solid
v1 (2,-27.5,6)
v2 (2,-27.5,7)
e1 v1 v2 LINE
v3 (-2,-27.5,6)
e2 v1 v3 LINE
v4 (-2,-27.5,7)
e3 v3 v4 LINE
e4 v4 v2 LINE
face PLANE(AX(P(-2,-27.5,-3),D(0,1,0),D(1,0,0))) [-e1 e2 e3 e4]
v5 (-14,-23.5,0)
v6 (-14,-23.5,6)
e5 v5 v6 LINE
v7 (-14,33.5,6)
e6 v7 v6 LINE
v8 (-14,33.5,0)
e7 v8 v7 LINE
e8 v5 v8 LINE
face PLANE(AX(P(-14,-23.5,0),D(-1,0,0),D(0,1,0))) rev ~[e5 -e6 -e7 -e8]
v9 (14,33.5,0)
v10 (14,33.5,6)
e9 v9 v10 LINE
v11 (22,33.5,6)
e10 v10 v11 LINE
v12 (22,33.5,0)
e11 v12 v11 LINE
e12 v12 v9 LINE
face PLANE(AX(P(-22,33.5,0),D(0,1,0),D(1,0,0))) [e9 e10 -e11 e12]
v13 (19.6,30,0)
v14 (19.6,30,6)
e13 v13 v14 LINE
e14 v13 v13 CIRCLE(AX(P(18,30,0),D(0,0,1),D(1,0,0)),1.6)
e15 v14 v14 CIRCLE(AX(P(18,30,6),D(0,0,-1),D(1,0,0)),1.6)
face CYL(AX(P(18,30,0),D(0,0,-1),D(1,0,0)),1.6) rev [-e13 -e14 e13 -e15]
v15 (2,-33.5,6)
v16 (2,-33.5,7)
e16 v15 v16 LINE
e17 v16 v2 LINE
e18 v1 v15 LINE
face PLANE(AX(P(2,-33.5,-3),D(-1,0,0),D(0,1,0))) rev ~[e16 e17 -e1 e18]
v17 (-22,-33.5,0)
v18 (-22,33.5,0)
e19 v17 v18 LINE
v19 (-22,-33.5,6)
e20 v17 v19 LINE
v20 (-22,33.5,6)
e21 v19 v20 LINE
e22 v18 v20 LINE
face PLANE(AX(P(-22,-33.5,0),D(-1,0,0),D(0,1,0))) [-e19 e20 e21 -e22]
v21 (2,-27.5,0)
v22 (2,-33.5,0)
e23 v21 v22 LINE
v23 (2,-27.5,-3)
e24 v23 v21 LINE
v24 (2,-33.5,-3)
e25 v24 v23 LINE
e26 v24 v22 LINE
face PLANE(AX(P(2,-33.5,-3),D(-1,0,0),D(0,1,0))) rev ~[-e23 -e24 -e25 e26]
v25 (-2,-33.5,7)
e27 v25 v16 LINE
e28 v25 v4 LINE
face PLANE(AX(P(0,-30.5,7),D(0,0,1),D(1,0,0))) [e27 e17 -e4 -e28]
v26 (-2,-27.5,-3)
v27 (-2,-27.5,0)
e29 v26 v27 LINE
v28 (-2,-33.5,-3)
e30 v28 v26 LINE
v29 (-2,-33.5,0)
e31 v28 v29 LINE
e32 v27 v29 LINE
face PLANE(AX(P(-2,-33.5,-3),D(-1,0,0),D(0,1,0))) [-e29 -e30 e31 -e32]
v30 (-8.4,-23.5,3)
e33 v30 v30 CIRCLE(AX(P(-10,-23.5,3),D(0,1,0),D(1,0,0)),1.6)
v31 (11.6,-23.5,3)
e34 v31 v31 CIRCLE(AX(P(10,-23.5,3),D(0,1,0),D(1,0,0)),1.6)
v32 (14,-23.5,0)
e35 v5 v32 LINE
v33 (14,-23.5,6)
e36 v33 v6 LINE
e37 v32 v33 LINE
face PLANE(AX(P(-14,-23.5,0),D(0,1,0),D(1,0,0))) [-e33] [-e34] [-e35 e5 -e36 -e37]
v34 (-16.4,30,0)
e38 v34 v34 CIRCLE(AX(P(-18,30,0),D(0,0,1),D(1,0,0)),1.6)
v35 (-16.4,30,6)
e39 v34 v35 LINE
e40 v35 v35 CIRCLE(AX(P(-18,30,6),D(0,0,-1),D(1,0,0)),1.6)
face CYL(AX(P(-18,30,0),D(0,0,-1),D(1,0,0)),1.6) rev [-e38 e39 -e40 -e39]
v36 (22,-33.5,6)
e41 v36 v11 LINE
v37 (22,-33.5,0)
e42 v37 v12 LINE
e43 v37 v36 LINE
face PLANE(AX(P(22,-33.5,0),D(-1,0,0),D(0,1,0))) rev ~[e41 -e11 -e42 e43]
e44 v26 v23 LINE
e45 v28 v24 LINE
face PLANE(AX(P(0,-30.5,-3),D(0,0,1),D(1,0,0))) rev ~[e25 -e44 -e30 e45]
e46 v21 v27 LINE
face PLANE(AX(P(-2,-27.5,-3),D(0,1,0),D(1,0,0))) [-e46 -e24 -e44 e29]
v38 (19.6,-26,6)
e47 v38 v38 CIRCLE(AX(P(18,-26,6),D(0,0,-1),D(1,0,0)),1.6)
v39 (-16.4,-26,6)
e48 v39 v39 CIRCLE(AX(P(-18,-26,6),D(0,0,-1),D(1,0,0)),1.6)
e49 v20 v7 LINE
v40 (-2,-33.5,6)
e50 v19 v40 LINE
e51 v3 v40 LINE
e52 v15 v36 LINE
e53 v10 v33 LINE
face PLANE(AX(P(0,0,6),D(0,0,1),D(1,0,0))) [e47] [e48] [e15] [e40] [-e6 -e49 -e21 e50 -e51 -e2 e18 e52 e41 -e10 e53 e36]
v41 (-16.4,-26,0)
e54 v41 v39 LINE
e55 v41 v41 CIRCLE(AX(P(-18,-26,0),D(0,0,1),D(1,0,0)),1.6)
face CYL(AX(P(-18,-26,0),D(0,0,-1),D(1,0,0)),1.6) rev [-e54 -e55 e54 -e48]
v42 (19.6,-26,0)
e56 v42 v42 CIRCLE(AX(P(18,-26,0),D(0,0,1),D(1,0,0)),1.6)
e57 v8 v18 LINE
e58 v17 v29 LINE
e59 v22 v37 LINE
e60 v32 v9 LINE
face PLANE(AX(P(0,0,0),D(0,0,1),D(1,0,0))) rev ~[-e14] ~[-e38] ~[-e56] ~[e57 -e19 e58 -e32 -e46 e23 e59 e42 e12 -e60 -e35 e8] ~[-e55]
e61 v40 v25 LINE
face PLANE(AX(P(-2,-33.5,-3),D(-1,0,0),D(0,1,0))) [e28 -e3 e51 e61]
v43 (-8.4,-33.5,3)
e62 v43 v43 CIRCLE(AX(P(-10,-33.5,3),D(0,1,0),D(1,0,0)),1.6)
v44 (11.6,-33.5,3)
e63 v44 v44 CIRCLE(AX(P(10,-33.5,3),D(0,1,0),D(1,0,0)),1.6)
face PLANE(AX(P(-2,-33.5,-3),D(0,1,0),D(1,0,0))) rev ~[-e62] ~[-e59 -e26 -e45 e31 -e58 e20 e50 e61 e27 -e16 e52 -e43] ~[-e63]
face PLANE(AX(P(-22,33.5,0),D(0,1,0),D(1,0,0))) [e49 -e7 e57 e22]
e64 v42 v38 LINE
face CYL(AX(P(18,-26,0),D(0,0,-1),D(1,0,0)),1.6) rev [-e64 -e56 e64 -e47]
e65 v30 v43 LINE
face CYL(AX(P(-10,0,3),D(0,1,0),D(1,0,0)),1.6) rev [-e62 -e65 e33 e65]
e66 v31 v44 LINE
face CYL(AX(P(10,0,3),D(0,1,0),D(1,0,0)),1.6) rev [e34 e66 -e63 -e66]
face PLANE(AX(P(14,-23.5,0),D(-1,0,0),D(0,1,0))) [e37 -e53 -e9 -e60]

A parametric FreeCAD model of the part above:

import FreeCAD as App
import Part
import Sketcher
from FreeCAD import Vector


def add_polygon(sketch, points):
    """Adds a closed chain of lines whose ends are joined by coincident constraints."""
    first, n = sketch.GeometryCount, len(points)
    for a, b in zip(points, points[1:] + points[:1]):
        sketch.addGeometry(Part.LineSegment(App.Vector(*a, 0), App.Vector(*b, 0)), False)
    for i in range(n):
        sketch.addConstraint(Sketcher.Constraint("Coincident", first + i, 2, first + (i + 1) % n, 1))

doc = App.newDocument("Part")
body = doc.addObject("PartDesign::Body", "Body")

sketch1 = doc.addObject("Sketcher::SketchObject", "Sketch")
body.addObject(sketch1)
sketch1.AttachmentSupport = (doc.XY_Plane, [""])
sketch1.MapMode = "FlatFace"
add_polygon(sketch1, [(-22, 34), (-22, -34), (22, -34), (22, 34)])
sketch1.addConstraint([
    Sketcher.Constraint("Vertical", 0),
    Sketcher.Constraint("Horizontal", 1),
    Sketcher.Constraint("Vertical", 2),
    Sketcher.Constraint("Horizontal", 3),
    Sketcher.Constraint("Symmetric", 0, 2, 2, 2, -1, 1),
    Sketcher.Constraint("DistanceX", 1, 1, 1, 2, 44.0),
    Sketcher.Constraint("DistanceY", 0, 2, 0, 1, 67.0),
])
pad1 = doc.addObject("PartDesign::Pad", "Pad")
body.addObject(pad1)
pad1.Profile = sketch1
pad1.Length = 6

sketch2 = doc.addObject("Sketcher::SketchObject", "Sketch001")
body.addObject(sketch2)
sketch2.AttachmentSupport = (doc.XY_Plane, [""])
sketch2.MapMode = "FlatFace"
add_polygon(sketch2, [(-14, 36), (-14, -24), (14, -24), (14, 36)])
sketch2.addConstraint([
    Sketcher.Constraint("Vertical", 0),
    Sketcher.Constraint("Horizontal", 1),
    Sketcher.Constraint("Vertical", 2),
    Sketcher.Constraint("Horizontal", 3),
    Sketcher.Constraint("DistanceX", 1, 1, 1, 2, 28.0),
    Sketcher.Constraint("DistanceY", 0, 2, 0, 1, 60.0),
    Sketcher.Constraint("DistanceX", 0, 2, -1, 1, 14.0),
    Sketcher.Constraint("DistanceY", 0, 2, -1, 1, 23.5),
])
pocket1 = doc.addObject("PartDesign::Pocket", "Pocket")
body.addObject(pocket1)
pocket1.Profile = sketch2
pocket1.Type = "ThroughAll"
pocket1.Midplane = True

sketch3 = doc.addObject("Sketcher::SketchObject", "Sketch002")
body.addObject(sketch3)
sketch3.AttachmentSupport = (doc.XY_Plane, [""])
sketch3.MapMode = "FlatFace"
sketch3.AttachmentOffset = App.Placement(Vector(0, 0, -3), App.Rotation())
add_polygon(sketch3, [(-2, -27.5), (-2, -33.5), (2, -33.5), (2, -27.5)])
sketch3.addConstraint([
    Sketcher.Constraint("Vertical", 0),
    Sketcher.Constraint("Horizontal", 1),
    Sketcher.Constraint("Vertical", 2),
    Sketcher.Constraint("Horizontal", 3),
    Sketcher.Constraint("DistanceX", 1, 1, 1, 2, 4.0),
    Sketcher.Constraint("DistanceY", 0, 2, 0, 1, 6.0),
    Sketcher.Constraint("DistanceX", 0, 2, -1, 1, 2.0),
    Sketcher.Constraint("DistanceY", 0, 2, -1, 1, 33.5),
])
pad2 = doc.addObject("PartDesign::Pad", "Pad001")
body.addObject(pad2)
pad2.Profile = sketch3
pad2.Length = 10

sketch4 = doc.addObject("Sketcher::SketchObject", "Sketch003")
body.addObject(sketch4)
sketch4.AttachmentSupport = (doc.XY_Plane, [""])
sketch4.MapMode = "FlatFace"
sketch4.addGeometry([
    Part.Circle(Vector(-18, 30, 0), Vector(0, 0, 1), 1.6),
    Part.Circle(Vector(-18, -26, 0), Vector(0, 0, 1), 1.6),
    Part.Circle(Vector(18, 30, 0), Vector(0, 0, 1), 1.6),
    Part.Circle(Vector(18, -26, 0), Vector(0, 0, 1), 1.6),
], False)
sketch4.addConstraint([
    Sketcher.Constraint("Equal", 0, 1),
    Sketcher.Constraint("Equal", 1, 2),
    Sketcher.Constraint("Equal", 2, 3),
    Sketcher.Constraint("Symmetric", 0, 3, 2, 3, -2),
    Sketcher.Constraint("Symmetric", 1, 3, 3, 3, -2),
    Sketcher.Constraint("Vertical", 0, 3, 1, 3),
    Sketcher.Constraint("Diameter", 0, 3.2),
    Sketcher.Constraint("DistanceX", 0, 3, -1, 1, 18.0),
    Sketcher.Constraint("DistanceY", -1, 1, 0, 3, 30.0),
    Sketcher.Constraint("DistanceY", 1, 3, -1, 1, 26.0),
])
pocket2 = doc.addObject("PartDesign::Pocket", "Pocket001")
body.addObject(pocket2)
pocket2.Profile = sketch4
pocket2.Type = "ThroughAll"
pocket2.Midplane = True

sketch5 = doc.addObject("Sketcher::SketchObject", "Sketch004")
body.addObject(sketch5)
sketch5.AttachmentSupport = (doc.XZ_Plane, [""])
sketch5.MapMode = "FlatFace"
sketch5.addGeometry([
    Part.Circle(Vector(10, 3, 0), Vector(0, 0, 1), 1.6),
    Part.Circle(Vector(-10, 3, 0), Vector(0, 0, 1), 1.6),
], False)
sketch5.addConstraint([
    Sketcher.Constraint("Equal", 0, 1),
    Sketcher.Constraint("Symmetric", 0, 3, 1, 3, -2),
    Sketcher.Constraint("Diameter", 0, 3.2),
    Sketcher.Constraint("DistanceX", -1, 1, 0, 3, 10.0),
    Sketcher.Constraint("DistanceY", -1, 1, 0, 3, 3.0),
])
pocket3 = doc.addObject("PartDesign::Pocket", "Pocket002")
body.addObject(pocket3)
pocket3.Profile = sketch5
pocket3.Type = "ThroughAll"
pocket3.Reversed = True

doc.recompute()
